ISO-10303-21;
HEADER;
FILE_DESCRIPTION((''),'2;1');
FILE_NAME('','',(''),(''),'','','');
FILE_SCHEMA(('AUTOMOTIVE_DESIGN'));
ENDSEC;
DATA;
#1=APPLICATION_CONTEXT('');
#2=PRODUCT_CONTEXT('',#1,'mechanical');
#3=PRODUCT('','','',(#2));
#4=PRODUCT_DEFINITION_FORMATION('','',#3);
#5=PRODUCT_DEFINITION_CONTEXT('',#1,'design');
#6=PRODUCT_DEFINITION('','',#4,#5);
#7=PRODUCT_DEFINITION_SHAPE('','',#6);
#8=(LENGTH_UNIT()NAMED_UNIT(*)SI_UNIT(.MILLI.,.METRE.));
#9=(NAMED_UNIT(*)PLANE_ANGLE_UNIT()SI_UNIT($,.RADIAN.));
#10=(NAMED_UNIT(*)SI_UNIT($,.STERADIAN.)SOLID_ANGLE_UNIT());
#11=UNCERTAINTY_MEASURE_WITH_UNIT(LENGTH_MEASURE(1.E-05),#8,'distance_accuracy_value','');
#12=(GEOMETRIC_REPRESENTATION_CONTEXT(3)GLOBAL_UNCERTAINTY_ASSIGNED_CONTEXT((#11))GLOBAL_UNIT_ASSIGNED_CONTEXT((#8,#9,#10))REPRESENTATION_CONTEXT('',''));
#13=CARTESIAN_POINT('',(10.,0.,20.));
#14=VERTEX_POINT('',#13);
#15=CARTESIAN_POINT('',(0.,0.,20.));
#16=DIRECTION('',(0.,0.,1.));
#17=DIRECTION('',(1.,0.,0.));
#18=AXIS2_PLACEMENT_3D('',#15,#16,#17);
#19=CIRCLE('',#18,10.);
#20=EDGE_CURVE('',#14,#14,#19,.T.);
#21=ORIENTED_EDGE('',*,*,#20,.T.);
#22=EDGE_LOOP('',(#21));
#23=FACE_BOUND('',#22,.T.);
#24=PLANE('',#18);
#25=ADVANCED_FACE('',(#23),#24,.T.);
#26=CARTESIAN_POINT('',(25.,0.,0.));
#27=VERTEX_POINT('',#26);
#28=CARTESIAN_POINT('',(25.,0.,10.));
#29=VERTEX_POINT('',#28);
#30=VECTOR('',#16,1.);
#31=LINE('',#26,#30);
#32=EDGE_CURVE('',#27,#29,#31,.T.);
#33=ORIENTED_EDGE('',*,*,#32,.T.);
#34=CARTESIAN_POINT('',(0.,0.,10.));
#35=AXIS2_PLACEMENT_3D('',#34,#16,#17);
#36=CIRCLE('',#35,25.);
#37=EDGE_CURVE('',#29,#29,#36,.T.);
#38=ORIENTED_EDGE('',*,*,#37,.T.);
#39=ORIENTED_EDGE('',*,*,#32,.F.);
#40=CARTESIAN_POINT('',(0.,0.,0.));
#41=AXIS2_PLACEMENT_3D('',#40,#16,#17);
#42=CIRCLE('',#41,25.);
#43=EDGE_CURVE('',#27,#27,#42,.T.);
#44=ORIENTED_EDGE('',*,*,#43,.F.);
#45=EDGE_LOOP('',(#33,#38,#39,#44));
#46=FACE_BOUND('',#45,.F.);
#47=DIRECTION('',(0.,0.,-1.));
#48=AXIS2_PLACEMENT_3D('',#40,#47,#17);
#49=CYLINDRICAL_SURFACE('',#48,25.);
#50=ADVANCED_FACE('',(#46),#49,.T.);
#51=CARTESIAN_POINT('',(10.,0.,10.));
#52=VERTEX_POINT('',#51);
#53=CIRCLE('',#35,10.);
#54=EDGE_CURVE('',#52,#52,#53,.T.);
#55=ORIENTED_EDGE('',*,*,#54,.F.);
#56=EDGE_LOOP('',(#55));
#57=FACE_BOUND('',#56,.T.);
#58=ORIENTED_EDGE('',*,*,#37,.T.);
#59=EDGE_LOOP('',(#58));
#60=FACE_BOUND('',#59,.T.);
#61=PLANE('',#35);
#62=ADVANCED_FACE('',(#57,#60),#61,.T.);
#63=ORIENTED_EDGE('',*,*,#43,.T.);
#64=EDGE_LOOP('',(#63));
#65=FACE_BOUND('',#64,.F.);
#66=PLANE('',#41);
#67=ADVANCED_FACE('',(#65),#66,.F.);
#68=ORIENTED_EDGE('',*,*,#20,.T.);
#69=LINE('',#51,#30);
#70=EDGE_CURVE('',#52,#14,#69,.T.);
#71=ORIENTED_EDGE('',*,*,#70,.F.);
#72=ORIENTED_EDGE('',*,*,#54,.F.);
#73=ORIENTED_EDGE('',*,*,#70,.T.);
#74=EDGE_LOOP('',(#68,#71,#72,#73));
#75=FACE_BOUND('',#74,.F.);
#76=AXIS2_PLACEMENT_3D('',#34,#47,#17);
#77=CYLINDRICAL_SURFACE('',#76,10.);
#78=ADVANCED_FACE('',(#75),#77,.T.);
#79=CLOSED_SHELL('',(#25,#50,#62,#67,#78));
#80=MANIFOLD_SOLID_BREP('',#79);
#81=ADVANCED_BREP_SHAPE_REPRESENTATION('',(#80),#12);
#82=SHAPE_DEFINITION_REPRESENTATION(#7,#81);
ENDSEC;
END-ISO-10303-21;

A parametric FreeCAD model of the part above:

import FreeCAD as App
import Part
import Sketcher
Q = App.Units.Quantity

doc = App.newDocument("Part")
params = doc.addObject("Spreadsheet::Sheet", "Params")
for row, (alias, value) in enumerate([
    ("sketch1_diameter", "50 mm"),
    ("pad1_length", "10 mm"),
    ("sketch2_diameter", "20 mm"),
    ("pad2_length", "10 mm"),
], start=1):
    params.set(f"A{row}", alias)
    params.set(f"B{row}", "=" + value)
    params.setAlias(f"B{row}", alias)

body = doc.addObject("PartDesign::Body", "Body")

# Sketch on XY plane
sketch1 = body.newObject("Sketcher::SketchObject", "Sketch")
sketch1.AttachmentSupport = (doc.getObject("XY_Plane"), [""])
sketch1.MapMode = "FlatFace"
sketch1.addGeometry(Part.Circle(App.Vector(0, 0, 0), App.Vector(0, 0, 1), 25), False)
sketch1.addConstraint([
    Sketcher.Constraint("Coincident", 0, 3, -1, 1),
    Sketcher.Constraint("Diameter", 0, Q("50 mm")),
])
sketch1.setExpression("Constraints[1]", "Params.sketch1_diameter")
pad1 = body.newObject("PartDesign::Pad", "Pad")
pad1.Profile = sketch1
pad1.setExpression("Length", "Params.pad1_length")

# Sketch on XY plane
sketch2 = body.newObject("Sketcher::SketchObject", "Sketch001")
sketch2.AttachmentSupport = (doc.getObject("XY_Plane"), [""])
sketch2.MapMode = "FlatFace"
sketch2.AttachmentOffset = App.Placement(App.Vector(0, 0, 10), App.Rotation())
sketch2.addGeometry(Part.Circle(App.Vector(0, 0, 0), App.Vector(0, 0, 1), 10), False)
sketch2.addConstraint([
    Sketcher.Constraint("Coincident", 0, 3, -1, 1),
    Sketcher.Constraint("Diameter", 0, Q("20 mm")),
])
sketch2.setExpression("Constraints[1]", "Params.sketch2_diameter")
pad2 = body.newObject("PartDesign::Pad", "Pad001")
pad2.Profile = sketch2
pad2.setExpression("Length", "Params.pad2_length")

doc.recompute()
